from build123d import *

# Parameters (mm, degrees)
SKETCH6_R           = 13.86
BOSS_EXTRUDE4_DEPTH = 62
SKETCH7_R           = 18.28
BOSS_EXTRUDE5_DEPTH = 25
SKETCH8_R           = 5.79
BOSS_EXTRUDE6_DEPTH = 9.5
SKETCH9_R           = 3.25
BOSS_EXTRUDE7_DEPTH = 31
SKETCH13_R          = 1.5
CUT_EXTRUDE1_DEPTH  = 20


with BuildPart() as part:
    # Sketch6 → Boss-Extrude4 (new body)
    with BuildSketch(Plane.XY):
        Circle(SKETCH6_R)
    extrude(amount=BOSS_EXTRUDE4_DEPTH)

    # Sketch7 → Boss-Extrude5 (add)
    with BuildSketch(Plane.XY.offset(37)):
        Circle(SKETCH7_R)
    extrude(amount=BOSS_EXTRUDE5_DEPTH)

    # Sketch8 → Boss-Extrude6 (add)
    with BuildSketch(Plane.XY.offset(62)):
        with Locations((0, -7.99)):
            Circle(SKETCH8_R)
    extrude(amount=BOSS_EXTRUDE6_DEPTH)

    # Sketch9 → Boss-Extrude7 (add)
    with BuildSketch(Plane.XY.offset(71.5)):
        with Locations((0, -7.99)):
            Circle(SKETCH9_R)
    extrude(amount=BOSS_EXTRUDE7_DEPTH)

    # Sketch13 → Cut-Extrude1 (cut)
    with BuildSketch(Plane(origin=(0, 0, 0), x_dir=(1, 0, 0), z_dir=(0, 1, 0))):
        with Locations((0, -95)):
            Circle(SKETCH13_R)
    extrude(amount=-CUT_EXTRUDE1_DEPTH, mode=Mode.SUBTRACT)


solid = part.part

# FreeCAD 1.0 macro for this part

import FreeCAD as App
import Part
import Sketcher
Q = App.Units.Quantity

doc = App.newDocument("Part")
body = doc.addObject("PartDesign::Body", "Body")

sketch1 = body.newObject("Sketcher::SketchObject", "Sketch")
sketch1.AttachmentSupport = (doc.getObject("XY_Plane"), [""])
sketch1.MapMode = "FlatFace"
sketch1.addGeometry(Part.Circle(App.Vector(0, 0, 0), App.Vector(0, 0, 1), 14), False)
sketch1.addConstraint([
    Sketcher.Constraint("Coincident", 0, 3, -1, 1),
    Sketcher.Constraint("Diameter", 0, Q("27.72 mm")),
])
pad1 = body.newObject("PartDesign::Pad", "Pad")
pad1.Profile = sketch1
pad1.Length = 62

sketch2 = body.newObject("Sketcher::SketchObject", "Sketch001")
sketch2.AttachmentSupport = (doc.getObject("XY_Plane"), [""])
sketch2.MapMode = "FlatFace"
sketch2.AttachmentOffset = App.Placement(App.Vector(0, 0, 37), App.Rotation())
sketch2.addGeometry(Part.Circle(App.Vector(0, 0, 0), App.Vector(0, 0, 1), 18), False)
sketch2.addConstraint([
    Sketcher.Constraint("Coincident", 0, 3, -1, 1),
    Sketcher.Constraint("Diameter", 0, Q("36.56 mm")),
])
pad2 = body.newObject("PartDesign::Pad", "Pad001")
pad2.Profile = sketch2
pad2.Length = 25

sketch3 = body.newObject("Sketcher::SketchObject", "Sketch002")
sketch3.AttachmentSupport = (doc.getObject("XY_Plane"), [""])
sketch3.MapMode = "FlatFace"
sketch3.AttachmentOffset = App.Placement(App.Vector(0, 0, 62), App.Rotation())
sketch3.addGeometry(Part.Circle(App.Vector(0, -8, 0), App.Vector(0, 0, 1), 6), False)
sketch3.addConstraint([
    Sketcher.Constraint("PointOnObject", 0, 3, -2),
    Sketcher.Constraint("Diameter", 0, Q("11.58 mm")),
    Sketcher.Constraint("DistanceY", 0, 3, -1, 1, Q("7.99 mm")),
])
pad3 = body.newObject("PartDesign::Pad", "Pad002")
pad3.Profile = sketch3
pad3.Length = 9.5

sketch4 = body.newObject("Sketcher::SketchObject", "Sketch003")
sketch4.AttachmentSupport = (doc.getObject("XY_Plane"), [""])
sketch4.MapMode = "FlatFace"
sketch4.AttachmentOffset = App.Placement(App.Vector(0, 0, 71.5), App.Rotation())
sketch4.addGeometry(Part.Circle(App.Vector(0, -8, 0), App.Vector(0, 0, 1), 3.2), False)
sketch4.addConstraint([
    Sketcher.Constraint("PointOnObject", 0, 3, -2),
    Sketcher.Constraint("Diameter", 0, Q("6.5 mm")),
    Sketcher.Constraint("DistanceY", 0, 3, -1, 1, Q("7.99 mm")),
])
pad4 = body.newObject("PartDesign::Pad", "Pad003")
pad4.Profile = sketch4
pad4.Length = 31

sketch5 = body.newObject("Sketcher::SketchObject", "Sketch004")
sketch5.AttachmentSupport = (doc.getObject("XZ_Plane"), [""])
sketch5.MapMode = "FlatFace"
sketch5.addGeometry(Part.Circle(App.Vector(0, 95, 0), App.Vector(0, 0, 1), 1.5), False)
sketch5.addConstraint([
    Sketcher.Constraint("PointOnObject", 0, 3, -2),
    Sketcher.Constraint("Diameter", 0, Q("3 mm")),
    Sketcher.Constraint("DistanceY", -1, 1, 0, 3, Q("95 mm")),
])
pocket1 = body.newObject("PartDesign::Pocket", "Pocket")
pocket1.Profile = sketch5
pocket1.Length = 20
pocket1.Reversed = True

doc.recompute()
